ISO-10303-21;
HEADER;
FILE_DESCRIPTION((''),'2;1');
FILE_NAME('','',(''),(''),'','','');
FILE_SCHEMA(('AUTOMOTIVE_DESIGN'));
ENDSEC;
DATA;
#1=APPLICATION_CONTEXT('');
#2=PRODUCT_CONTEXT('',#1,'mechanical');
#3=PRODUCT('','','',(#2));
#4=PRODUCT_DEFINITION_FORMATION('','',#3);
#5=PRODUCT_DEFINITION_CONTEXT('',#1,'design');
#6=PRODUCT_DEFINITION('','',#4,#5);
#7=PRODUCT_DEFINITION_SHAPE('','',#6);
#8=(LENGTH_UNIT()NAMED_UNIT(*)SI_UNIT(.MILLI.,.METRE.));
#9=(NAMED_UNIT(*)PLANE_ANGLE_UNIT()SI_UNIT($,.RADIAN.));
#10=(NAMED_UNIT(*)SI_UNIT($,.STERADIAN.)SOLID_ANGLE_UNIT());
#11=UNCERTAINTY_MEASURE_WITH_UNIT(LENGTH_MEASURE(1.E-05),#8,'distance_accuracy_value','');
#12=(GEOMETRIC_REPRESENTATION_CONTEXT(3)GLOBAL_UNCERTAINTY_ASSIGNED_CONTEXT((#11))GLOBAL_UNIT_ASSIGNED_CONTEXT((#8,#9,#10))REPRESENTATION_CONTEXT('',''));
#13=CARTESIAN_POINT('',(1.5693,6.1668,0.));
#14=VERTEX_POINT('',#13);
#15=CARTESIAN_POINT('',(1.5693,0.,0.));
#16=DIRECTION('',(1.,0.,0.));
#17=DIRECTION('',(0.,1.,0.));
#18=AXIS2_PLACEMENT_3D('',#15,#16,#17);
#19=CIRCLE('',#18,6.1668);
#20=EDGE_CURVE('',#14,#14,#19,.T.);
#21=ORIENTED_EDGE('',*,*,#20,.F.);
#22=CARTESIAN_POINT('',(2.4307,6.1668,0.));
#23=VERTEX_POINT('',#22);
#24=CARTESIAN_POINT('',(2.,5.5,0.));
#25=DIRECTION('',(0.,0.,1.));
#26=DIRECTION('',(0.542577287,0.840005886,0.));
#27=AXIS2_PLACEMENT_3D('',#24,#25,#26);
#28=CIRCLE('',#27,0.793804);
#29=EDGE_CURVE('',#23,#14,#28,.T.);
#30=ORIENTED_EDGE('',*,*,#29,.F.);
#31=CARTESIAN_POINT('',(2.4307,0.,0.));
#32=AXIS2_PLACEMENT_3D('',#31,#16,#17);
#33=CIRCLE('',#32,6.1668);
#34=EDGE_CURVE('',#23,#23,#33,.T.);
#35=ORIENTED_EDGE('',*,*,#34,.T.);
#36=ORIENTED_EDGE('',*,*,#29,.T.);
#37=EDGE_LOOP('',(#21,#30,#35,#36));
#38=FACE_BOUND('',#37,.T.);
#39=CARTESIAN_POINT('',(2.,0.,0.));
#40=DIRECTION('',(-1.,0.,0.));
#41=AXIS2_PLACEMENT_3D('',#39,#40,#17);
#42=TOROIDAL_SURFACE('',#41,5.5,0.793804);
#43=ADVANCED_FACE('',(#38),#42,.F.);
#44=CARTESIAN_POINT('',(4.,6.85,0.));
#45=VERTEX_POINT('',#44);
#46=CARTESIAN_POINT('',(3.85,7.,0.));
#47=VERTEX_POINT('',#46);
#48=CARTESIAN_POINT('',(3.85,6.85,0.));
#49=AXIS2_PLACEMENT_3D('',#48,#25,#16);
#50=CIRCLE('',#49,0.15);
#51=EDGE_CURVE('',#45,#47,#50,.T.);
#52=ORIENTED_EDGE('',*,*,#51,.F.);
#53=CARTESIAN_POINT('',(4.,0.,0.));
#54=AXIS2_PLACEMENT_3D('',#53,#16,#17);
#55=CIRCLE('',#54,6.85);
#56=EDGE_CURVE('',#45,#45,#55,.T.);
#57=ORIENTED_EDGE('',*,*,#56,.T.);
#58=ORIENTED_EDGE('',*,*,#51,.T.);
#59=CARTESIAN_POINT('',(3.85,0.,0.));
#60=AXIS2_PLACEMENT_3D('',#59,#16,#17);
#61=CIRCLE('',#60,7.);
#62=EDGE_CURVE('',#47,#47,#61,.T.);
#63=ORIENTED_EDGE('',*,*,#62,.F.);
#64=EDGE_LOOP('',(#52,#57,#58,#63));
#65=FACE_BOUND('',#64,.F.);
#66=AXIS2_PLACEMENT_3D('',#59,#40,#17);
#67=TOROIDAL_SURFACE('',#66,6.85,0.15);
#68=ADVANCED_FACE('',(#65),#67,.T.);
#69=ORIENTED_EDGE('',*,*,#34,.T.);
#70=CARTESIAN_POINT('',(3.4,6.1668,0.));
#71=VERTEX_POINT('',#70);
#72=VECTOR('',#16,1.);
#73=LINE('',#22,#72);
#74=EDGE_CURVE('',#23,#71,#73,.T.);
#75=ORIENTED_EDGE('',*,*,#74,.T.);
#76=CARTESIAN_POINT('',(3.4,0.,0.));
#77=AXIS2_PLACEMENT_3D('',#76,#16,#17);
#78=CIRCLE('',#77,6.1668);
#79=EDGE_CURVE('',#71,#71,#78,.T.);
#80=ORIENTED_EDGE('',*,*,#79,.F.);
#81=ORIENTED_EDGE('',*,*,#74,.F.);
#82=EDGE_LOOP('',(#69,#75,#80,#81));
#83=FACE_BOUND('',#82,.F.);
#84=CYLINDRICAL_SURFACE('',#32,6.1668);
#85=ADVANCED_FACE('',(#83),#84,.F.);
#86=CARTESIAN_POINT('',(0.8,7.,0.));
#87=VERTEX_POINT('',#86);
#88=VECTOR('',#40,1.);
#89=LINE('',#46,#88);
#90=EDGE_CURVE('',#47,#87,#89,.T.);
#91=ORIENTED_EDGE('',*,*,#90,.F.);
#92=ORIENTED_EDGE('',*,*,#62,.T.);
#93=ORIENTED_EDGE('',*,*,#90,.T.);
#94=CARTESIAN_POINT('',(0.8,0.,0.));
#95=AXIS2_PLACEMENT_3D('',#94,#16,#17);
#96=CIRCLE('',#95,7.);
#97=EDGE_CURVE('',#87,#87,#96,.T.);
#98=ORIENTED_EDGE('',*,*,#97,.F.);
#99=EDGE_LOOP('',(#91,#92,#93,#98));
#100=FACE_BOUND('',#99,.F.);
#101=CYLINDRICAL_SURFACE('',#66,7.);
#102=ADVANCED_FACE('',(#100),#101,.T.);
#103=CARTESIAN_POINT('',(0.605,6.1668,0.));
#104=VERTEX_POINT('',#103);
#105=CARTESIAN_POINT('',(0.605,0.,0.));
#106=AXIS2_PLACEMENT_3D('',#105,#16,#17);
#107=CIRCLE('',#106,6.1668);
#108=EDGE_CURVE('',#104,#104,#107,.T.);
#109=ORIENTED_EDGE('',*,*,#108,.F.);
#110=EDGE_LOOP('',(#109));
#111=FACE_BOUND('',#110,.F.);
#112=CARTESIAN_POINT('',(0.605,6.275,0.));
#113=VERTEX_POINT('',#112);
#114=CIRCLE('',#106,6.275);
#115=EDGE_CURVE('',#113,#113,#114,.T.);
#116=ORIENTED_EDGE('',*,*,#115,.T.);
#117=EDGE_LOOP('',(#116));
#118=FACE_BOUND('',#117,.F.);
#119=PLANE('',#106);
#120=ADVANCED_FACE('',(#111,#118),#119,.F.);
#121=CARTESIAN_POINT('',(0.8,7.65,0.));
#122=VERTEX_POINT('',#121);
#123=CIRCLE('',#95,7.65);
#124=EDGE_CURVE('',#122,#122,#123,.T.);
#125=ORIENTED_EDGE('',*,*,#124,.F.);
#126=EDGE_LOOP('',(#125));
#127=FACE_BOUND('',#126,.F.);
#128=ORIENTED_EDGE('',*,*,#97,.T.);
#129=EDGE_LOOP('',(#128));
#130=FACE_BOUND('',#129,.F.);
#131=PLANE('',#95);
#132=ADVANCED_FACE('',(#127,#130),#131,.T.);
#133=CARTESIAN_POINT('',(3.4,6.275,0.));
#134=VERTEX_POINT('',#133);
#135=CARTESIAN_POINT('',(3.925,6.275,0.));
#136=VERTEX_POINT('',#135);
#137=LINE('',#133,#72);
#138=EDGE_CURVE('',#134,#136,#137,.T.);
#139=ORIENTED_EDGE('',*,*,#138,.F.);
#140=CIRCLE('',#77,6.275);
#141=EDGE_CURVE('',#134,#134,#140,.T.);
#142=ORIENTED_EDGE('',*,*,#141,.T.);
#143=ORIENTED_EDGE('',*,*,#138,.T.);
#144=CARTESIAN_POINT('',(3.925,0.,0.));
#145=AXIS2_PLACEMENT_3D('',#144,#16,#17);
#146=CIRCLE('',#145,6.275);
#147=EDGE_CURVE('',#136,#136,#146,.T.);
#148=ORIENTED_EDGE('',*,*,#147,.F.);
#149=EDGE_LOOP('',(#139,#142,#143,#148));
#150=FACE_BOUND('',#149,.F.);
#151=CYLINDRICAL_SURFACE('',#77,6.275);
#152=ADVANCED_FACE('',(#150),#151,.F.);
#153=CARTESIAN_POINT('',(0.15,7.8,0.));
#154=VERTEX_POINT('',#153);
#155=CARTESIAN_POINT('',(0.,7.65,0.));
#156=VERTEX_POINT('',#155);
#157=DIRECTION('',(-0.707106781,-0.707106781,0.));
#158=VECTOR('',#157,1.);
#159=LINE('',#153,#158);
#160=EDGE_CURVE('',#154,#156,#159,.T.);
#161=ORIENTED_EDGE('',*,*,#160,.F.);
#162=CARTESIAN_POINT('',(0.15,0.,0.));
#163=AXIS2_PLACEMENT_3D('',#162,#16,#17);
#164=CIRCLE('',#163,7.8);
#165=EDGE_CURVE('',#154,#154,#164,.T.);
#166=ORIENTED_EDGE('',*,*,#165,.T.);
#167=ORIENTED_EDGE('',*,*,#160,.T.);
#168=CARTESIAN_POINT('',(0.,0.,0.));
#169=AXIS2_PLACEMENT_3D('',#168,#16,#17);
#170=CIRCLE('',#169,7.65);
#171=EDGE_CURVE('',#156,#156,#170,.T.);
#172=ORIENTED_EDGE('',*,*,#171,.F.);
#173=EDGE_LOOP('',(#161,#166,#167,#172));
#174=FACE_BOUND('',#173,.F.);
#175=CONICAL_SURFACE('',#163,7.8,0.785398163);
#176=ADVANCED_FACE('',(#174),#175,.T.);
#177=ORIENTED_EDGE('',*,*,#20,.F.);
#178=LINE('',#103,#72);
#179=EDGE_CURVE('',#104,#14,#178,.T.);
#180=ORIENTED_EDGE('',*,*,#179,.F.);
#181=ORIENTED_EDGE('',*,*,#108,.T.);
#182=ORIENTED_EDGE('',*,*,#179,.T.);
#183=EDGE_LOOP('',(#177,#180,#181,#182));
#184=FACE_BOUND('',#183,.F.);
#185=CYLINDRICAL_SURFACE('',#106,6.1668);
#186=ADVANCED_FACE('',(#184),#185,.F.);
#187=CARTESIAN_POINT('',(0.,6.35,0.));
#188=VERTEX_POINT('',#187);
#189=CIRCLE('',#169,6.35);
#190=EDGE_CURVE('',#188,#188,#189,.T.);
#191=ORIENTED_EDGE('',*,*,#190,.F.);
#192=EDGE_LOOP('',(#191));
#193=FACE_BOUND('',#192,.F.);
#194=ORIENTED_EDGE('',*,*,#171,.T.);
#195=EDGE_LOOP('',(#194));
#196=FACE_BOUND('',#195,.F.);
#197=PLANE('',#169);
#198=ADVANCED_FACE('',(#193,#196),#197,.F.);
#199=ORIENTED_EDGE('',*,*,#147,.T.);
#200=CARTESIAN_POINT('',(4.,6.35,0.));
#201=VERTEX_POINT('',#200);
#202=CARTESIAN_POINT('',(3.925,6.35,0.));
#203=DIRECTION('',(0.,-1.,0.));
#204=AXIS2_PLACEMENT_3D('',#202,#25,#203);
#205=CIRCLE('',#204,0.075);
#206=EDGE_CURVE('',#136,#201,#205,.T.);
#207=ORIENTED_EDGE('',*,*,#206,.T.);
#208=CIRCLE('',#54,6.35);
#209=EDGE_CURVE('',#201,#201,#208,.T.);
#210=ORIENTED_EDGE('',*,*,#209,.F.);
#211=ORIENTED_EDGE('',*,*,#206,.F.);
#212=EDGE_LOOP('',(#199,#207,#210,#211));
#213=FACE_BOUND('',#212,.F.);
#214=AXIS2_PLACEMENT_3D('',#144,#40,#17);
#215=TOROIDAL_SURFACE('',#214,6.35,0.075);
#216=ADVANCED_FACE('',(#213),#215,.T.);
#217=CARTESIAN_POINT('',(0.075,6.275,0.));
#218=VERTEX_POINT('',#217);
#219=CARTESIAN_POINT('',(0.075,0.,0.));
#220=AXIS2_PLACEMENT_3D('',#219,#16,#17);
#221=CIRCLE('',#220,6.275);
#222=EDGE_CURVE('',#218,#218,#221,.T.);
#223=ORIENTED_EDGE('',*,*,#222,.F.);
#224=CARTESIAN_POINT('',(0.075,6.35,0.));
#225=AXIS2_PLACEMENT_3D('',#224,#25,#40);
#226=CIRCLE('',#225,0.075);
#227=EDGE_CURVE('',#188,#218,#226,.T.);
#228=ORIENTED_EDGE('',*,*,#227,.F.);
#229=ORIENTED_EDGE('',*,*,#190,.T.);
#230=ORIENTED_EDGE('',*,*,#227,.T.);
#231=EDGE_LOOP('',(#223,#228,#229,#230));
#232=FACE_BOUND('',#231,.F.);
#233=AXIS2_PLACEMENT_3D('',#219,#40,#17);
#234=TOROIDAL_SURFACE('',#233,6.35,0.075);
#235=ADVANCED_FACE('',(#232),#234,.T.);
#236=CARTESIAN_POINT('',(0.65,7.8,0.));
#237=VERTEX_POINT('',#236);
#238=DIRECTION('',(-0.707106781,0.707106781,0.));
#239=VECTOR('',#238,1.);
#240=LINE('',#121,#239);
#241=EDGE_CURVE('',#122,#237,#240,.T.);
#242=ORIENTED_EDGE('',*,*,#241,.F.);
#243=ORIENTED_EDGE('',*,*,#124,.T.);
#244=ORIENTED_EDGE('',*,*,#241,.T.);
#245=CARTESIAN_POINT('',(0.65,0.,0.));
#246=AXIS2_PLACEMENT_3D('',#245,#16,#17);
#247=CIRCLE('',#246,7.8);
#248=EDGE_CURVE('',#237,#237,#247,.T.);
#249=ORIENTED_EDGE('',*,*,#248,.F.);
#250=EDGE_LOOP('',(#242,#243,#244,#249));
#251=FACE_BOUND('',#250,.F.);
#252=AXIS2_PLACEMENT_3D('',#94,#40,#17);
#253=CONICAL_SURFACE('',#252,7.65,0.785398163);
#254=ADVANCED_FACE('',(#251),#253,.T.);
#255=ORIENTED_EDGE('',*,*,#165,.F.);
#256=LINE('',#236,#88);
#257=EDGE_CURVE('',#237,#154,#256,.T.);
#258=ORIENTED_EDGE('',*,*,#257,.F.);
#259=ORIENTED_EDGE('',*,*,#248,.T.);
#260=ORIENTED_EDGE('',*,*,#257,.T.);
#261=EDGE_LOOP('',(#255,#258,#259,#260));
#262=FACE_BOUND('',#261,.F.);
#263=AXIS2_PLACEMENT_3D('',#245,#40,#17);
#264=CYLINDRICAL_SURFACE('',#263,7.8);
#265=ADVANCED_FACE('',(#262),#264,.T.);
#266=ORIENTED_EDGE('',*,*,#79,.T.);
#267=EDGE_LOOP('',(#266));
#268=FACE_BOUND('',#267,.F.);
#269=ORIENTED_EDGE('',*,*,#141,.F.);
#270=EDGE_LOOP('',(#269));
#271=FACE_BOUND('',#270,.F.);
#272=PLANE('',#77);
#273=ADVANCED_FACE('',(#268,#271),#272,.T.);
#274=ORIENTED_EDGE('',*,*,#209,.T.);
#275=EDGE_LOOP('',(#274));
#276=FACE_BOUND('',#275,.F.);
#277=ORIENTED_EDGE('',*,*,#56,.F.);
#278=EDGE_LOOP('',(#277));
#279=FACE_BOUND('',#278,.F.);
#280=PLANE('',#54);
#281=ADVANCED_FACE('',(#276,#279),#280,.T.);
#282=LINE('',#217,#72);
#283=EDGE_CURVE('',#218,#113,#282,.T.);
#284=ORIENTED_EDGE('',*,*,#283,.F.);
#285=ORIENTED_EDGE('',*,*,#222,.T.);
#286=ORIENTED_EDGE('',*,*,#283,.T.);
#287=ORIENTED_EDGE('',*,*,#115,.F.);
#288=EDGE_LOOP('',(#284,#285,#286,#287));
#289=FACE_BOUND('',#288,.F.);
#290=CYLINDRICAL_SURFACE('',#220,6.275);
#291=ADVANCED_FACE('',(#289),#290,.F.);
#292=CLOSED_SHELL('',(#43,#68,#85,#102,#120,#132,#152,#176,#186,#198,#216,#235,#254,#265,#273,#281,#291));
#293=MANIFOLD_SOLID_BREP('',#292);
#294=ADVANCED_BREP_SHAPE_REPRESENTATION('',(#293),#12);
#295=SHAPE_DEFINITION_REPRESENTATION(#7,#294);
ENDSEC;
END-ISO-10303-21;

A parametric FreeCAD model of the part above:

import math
import FreeCAD as App
import Part
import Sketcher

V = App.Vector

doc = App.newDocument("Part")
body = doc.addObject("PartDesign::Body", "Body")

sketch1 = doc.addObject("Sketcher::SketchObject", "Sketch")
body.addObject(sketch1)
sketch1.AttachmentSupport = (doc.XY_Plane, [""])
sketch1.MapMode = "FlatFace"
sketch1.addGeometry(Part.LineSegment(V(0.15, 7.8, 0), V(0, 7.65, 0)), False)
sketch1.addGeometry(Part.LineSegment(V(0, 7.65, 0), V(0, 6.35, 0)), False)
sketch1.addGeometry(Part.ArcOfCircle(Part.Circle(V(0.075, 6.35, 0), V(0, 0, 1), 0.075), math.radians(180), math.radians(270)), False)
sketch1.addGeometry(Part.LineSegment(V(0.075, 6.275, 0), V(0.605, 6.275, 0)), False)
sketch1.addGeometry(Part.LineSegment(V(0.605, 6.275, 0), V(0.605, 6.1668, 0)), False)
sketch1.addGeometry(Part.LineSegment(V(0.605, 6.1668, 0), V(1.5693, 6.1668, 0)), False)
sketch1.addGeometry(Part.ArcOfCircle(Part.Circle(V(2, 5.5, 0), V(0, 0, 1), 0.793804), math.radians(57.140741), math.radians(122.859259)), False)
sketch1.addGeometry(Part.LineSegment(V(2.4307, 6.1668, 0), V(3.4, 6.1668, 0)), False)
sketch1.addGeometry(Part.LineSegment(V(3.4, 6.1668, 0), V(3.4, 6.275, 0)), False)
sketch1.addGeometry(Part.LineSegment(V(3.4, 6.275, 0), V(3.925, 6.275, 0)), False)
sketch1.addGeometry(Part.ArcOfCircle(Part.Circle(V(3.925, 6.35, 0), V(0, 0, 1), 0.075), math.radians(-90), math.radians(0)), False)
sketch1.addGeometry(Part.LineSegment(V(4, 6.35, 0), V(4, 6.85, 0)), False)
sketch1.addGeometry(Part.ArcOfCircle(Part.Circle(V(3.85, 6.85, 0), V(0, 0, 1), 0.15), math.radians(0), math.radians(90)), False)
sketch1.addGeometry(Part.LineSegment(V(3.85, 7, 0), V(0.8, 7, 0)), False)
sketch1.addGeometry(Part.LineSegment(V(0.8, 7, 0), V(0.8, 7.65, 0)), False)
sketch1.addGeometry(Part.LineSegment(V(0.8, 7.65, 0), V(0.65, 7.8, 0)), False)
sketch1.addGeometry(Part.LineSegment(V(0.65, 7.8, 0), V(0.15, 7.8, 0)), False)
sketch1.addConstraint(Sketcher.Constraint("Coincident", 0, 2, 1, 1))
sketch1.addConstraint(Sketcher.Constraint("Tangent", 1, 2, 2, 1))
sketch1.addConstraint(Sketcher.Constraint("Tangent", 2, 2, 3, 1))
sketch1.addConstraint(Sketcher.Constraint("Coincident", 3, 2, 4, 1))
sketch1.addConstraint(Sketcher.Constraint("Coincident", 4, 2, 5, 1))
sketch1.addConstraint(Sketcher.Constraint("Coincident", 5, 2, 6, 2))
sketch1.addConstraint(Sketcher.Constraint("Coincident", 6, 1, 7, 1))
sketch1.addConstraint(Sketcher.Constraint("Coincident", 7, 2, 8, 1))
sketch1.addConstraint(Sketcher.Constraint("Coincident", 8, 2, 9, 1))
sketch1.addConstraint(Sketcher.Constraint("Tangent", 9, 2, 10, 1))
sketch1.addConstraint(Sketcher.Constraint("Tangent", 10, 2, 11, 1))
sketch1.addConstraint(Sketcher.Constraint("Tangent", 11, 2, 12, 1))
sketch1.addConstraint(Sketcher.Constraint("Tangent", 12, 2, 13, 1))
sketch1.addConstraint(Sketcher.Constraint("Coincident", 13, 2, 14, 1))
sketch1.addConstraint(Sketcher.Constraint("Coincident", 14, 2, 15, 1))
sketch1.addConstraint(Sketcher.Constraint("Coincident", 15, 2, 16, 1))
sketch1.addConstraint(Sketcher.Constraint("Coincident", 16, 2, 0, 1))
sketch1.addConstraint(Sketcher.Constraint("Vertical", 1))
sketch1.addConstraint(Sketcher.Constraint("Horizontal", 3))
sketch1.addConstraint(Sketcher.Constraint("Vertical", 4))
sketch1.addConstraint(Sketcher.Constraint("Horizontal", 5))
sketch1.addConstraint(Sketcher.Constraint("Horizontal", 7))
sketch1.addConstraint(Sketcher.Constraint("Vertical", 8))
sketch1.addConstraint(Sketcher.Constraint("Horizontal", 9))
sketch1.addConstraint(Sketcher.Constraint("Vertical", 11))
sketch1.addConstraint(Sketcher.Constraint("Horizontal", 13))
sketch1.addConstraint(Sketcher.Constraint("Vertical", 14))
sketch1.addConstraint(Sketcher.Constraint("Horizontal", 16))
sketch1.addConstraint(Sketcher.Constraint("Equal", 2, 10))
sketch1.addConstraint(Sketcher.Constraint("PointOnObject", 0, 2, -2))
sketch1.addConstraint(Sketcher.Constraint("Perpendicular", 0, 15))
sketch1.addConstraint(Sketcher.Constraint("Horizontal", 2, 3, 10, 3))
sketch1.addConstraint(Sketcher.Constraint("Horizontal", 5, 2, 6, 1))
sketch1.addConstraint(Sketcher.Constraint("Horizontal", 0, 2, 14, 2))
sketch1.addConstraint(Sketcher.Constraint("Equal", 16, 11))
sketch1.addConstraint(Sketcher.Constraint("Equal", 0, 15))
sketch1.addConstraint(Sketcher.Constraint("Radius", 12, 0.15))
sketch1.addConstraint(Sketcher.Constraint("DistanceX", 16, 2, 16, 1, 0.5))
sketch1.addConstraint(Sketcher.Constraint("DistanceY", 1, 2, 1, 1, 1.3))
sketch1.addConstraint(Sketcher.Constraint("DistanceX", -1, 1, 6, 3, 2.0))
sketch1.addConstraint(Sketcher.Constraint("DistanceX", -1, 1, 10, 2, 4.0))
sketch1.addConstraint(Sketcher.Constraint("DistanceY", -1, 1, 12, 2, 7.0))
sketch1.addConstraint(Sketcher.Constraint("Radius", 2, 0.075))
sketch1.addConstraint(Sketcher.Constraint("DistanceX", 3, 1, 3, 2, 0.53))
sketch1.addConstraint(Sketcher.Constraint("DistanceX", 13, 2, 13, 1, 3.05))
sketch1.addConstraint(Sketcher.Constraint("DistanceY", -1, 1, 6, 3, 5.5))
sketch1.addConstraint(Sketcher.Constraint("DistanceX", -1, 1, 7, 2, 3.4))
sketch1.addConstraint(Sketcher.Constraint("Radius", 6, 0.7938))
sketch1.addConstraint(Sketcher.Constraint("DistanceX", 5, 1, 5, 2, 0.9643))
revolution = doc.addObject("PartDesign::Revolution", "Revolution")
body.addObject(revolution)
revolution.Profile = sketch1
revolution.ReferenceAxis = (sketch1, ["H_Axis"])
revolution.Angle = 360

doc.recompute()
